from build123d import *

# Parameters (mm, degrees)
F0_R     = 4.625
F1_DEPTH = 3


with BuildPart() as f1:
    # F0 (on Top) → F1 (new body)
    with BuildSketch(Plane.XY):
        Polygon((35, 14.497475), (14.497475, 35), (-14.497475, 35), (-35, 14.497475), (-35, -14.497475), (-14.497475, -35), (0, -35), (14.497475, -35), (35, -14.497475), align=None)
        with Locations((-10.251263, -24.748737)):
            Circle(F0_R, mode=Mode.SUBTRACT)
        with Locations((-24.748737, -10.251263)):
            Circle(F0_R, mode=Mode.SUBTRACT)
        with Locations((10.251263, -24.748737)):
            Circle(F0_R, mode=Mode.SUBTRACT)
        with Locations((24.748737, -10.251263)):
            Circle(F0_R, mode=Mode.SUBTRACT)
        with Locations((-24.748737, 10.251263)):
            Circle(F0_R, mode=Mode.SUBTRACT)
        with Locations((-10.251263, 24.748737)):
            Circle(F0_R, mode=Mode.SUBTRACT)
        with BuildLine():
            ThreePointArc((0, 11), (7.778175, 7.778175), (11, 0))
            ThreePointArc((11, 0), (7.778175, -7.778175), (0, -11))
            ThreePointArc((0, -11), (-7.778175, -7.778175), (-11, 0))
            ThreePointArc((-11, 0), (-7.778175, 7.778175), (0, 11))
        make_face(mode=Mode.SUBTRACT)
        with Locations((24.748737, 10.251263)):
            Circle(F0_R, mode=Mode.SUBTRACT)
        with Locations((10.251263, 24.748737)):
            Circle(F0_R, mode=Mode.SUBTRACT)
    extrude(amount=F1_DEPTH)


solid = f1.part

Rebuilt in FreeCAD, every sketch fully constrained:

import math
import FreeCAD as App
import Part
import Sketcher

V = App.Vector


def add_polygon(sketch, points):
    """Adds a closed chain of lines whose ends are joined by coincident constraints."""
    first, n = sketch.GeometryCount, len(points)
    for a, b in zip(points, points[1:] + points[:1]):
        sketch.addGeometry(Part.LineSegment(App.Vector(*a, 0), App.Vector(*b, 0)), False)
    for i in range(n):
        sketch.addConstraint(Sketcher.Constraint("Coincident", first + i, 2, first + (i + 1) % n, 1))

doc = App.newDocument("Part")
body = doc.addObject("PartDesign::Body", "Body")

sketch1 = doc.addObject("Sketcher::SketchObject", "Sketch")
body.addObject(sketch1)
sketch1.AttachmentSupport = (doc.XY_Plane, [""])
sketch1.MapMode = "FlatFace"
add_polygon(sketch1, [(35, 14.5), (14.5, 35), (-14.5, 35), (-35, 14.5), (-35, -14.5), (-14.5, -35), (14.5, -35), (35, -14.5)])
sketch1.addGeometry(Part.Circle(V(-10.3, -24.7, 0), V(0, 0, 1), 4.6), False)
sketch1.addGeometry(Part.Circle(V(-24.7, -10.3, 0), V(0, 0, 1), 4.6), False)
sketch1.addGeometry(Part.Circle(V(10.3, -24.7, 0), V(0, 0, 1), 4.6), False)
sketch1.addGeometry(Part.Circle(V(24.7, -10.3, 0), V(0, 0, 1), 4.6), False)
sketch1.addGeometry(Part.Circle(V(-24.7, 10.3, 0), V(0, 0, 1), 4.6), False)
sketch1.addGeometry(Part.Circle(V(-10.3, 24.7, 0), V(0, 0, 1), 4.6), False)
sketch1.addGeometry(Part.ArcOfCircle(Part.Circle(V(0, 0, 0), V(0, 0, 1), 11), math.radians(90), math.radians(180)), False)
sketch1.addGeometry(Part.ArcOfCircle(Part.Circle(V(0, 0, 0), V(0, 0, 1), 11), math.radians(0), math.radians(90)), False)
sketch1.addGeometry(Part.ArcOfCircle(Part.Circle(V(0, 0, 0), V(0, 0, 1), 11), math.radians(-90), math.radians(0)), False)
sketch1.addGeometry(Part.ArcOfCircle(Part.Circle(V(0, 0, 0), V(0, 0, 1), 11), math.radians(180), math.radians(270)), False)
sketch1.addGeometry(Part.Circle(V(24.7, 10.3, 0), V(0, 0, 1), 4.6), False)
sketch1.addGeometry(Part.Circle(V(10.3, 24.7, 0), V(0, 0, 1), 4.6), False)
sketch1.addConstraint([
    Sketcher.Constraint("Tangent", 14, 1, 15, 2),
    Sketcher.Constraint("Tangent", 15, 1, 16, 2),
    Sketcher.Constraint("Tangent", 16, 1, 17, 2),
    Sketcher.Constraint("Tangent", 17, 1, 14, 2),
    Sketcher.Constraint("Horizontal", 1),
    Sketcher.Constraint("Vertical", 3),
    Sketcher.Constraint("Horizontal", 5),
    Sketcher.Constraint("Vertical", 7),
    Sketcher.Constraint("Coincident", 14, 3, -1, 1),
    Sketcher.Constraint("Equal", 8, 9),
    Sketcher.Constraint("Equal", 9, 10),
    Sketcher.Constraint("Equal", 10, 11),
    Sketcher.Constraint("Equal", 11, 12),
    Sketcher.Constraint("Equal", 12, 13),
    Sketcher.Constraint("Equal", 14, 15),
    Sketcher.Constraint("Equal", 13, 18),
    Sketcher.Constraint("Equal", 18, 19),
    Sketcher.Constraint("Symmetric", 11, 3, 12, 3, -1, 1),
    Sketcher.Constraint("Symmetric", 10, 3, 13, 3, -1, 1),
    Sketcher.Constraint("Symmetric", 9, 3, 18, 3, -1, 1),
    Sketcher.Constraint("Symmetric", 8, 3, 19, 3, -1, 1),
    Sketcher.Constraint("Symmetric", 0, 2, 4, 2, -1, 1),
    Sketcher.Constraint("Symmetric", 2, 2, 6, 2, -1, 1),
    Sketcher.Constraint("Symmetric", 8, 3, 10, 3, -2),
    Sketcher.Constraint("Symmetric", 9, 3, 11, 3, -2),
    Sketcher.Constraint("PointOnObject", 14, 1, -2),
    Sketcher.Constraint("PointOnObject", 15, 1, -1),
    Sketcher.Constraint("PointOnObject", 16, 1, -2),
    Sketcher.Constraint("PointOnObject", 17, 1, -1),
    Sketcher.Constraint("Perpendicular", 0, 2),
    Sketcher.Constraint("Perpendicular", 2, 4),
    Sketcher.Constraint("Perpendicular", 4, 6),
    Sketcher.Constraint("Horizontal", 3, 2, 6, 2),
    Sketcher.Constraint("Vertical", 1, 2, 4, 2),
    Sketcher.Constraint("Equal", 5, 3),
    Sketcher.Constraint("Radius", 14, 10.999999),
    Sketcher.Constraint("Diameter", 8, 9.25),
    Sketcher.Constraint("DistanceY", -1, 1, 0, 2, 35.0),
    Sketcher.Constraint("DistanceX", 9, 3, 10, 3, 35.0),
    Sketcher.Constraint("DistanceY", 8, 3, 12, 3, 35.0),
    Sketcher.Constraint("DistanceX", 1, 2, 1, 1, 28.99495),
    Sketcher.Constraint("DistanceY", 14, 3, 12, 3, 10.251262),
    Sketcher.Constraint("DistanceX", 13, 3, 14, 3, 10.251262),
])
pad1 = doc.addObject("PartDesign::Pad", "Pad")
body.addObject(pad1)
pad1.Profile = sketch1
pad1.Length = 3

doc.recompute()
